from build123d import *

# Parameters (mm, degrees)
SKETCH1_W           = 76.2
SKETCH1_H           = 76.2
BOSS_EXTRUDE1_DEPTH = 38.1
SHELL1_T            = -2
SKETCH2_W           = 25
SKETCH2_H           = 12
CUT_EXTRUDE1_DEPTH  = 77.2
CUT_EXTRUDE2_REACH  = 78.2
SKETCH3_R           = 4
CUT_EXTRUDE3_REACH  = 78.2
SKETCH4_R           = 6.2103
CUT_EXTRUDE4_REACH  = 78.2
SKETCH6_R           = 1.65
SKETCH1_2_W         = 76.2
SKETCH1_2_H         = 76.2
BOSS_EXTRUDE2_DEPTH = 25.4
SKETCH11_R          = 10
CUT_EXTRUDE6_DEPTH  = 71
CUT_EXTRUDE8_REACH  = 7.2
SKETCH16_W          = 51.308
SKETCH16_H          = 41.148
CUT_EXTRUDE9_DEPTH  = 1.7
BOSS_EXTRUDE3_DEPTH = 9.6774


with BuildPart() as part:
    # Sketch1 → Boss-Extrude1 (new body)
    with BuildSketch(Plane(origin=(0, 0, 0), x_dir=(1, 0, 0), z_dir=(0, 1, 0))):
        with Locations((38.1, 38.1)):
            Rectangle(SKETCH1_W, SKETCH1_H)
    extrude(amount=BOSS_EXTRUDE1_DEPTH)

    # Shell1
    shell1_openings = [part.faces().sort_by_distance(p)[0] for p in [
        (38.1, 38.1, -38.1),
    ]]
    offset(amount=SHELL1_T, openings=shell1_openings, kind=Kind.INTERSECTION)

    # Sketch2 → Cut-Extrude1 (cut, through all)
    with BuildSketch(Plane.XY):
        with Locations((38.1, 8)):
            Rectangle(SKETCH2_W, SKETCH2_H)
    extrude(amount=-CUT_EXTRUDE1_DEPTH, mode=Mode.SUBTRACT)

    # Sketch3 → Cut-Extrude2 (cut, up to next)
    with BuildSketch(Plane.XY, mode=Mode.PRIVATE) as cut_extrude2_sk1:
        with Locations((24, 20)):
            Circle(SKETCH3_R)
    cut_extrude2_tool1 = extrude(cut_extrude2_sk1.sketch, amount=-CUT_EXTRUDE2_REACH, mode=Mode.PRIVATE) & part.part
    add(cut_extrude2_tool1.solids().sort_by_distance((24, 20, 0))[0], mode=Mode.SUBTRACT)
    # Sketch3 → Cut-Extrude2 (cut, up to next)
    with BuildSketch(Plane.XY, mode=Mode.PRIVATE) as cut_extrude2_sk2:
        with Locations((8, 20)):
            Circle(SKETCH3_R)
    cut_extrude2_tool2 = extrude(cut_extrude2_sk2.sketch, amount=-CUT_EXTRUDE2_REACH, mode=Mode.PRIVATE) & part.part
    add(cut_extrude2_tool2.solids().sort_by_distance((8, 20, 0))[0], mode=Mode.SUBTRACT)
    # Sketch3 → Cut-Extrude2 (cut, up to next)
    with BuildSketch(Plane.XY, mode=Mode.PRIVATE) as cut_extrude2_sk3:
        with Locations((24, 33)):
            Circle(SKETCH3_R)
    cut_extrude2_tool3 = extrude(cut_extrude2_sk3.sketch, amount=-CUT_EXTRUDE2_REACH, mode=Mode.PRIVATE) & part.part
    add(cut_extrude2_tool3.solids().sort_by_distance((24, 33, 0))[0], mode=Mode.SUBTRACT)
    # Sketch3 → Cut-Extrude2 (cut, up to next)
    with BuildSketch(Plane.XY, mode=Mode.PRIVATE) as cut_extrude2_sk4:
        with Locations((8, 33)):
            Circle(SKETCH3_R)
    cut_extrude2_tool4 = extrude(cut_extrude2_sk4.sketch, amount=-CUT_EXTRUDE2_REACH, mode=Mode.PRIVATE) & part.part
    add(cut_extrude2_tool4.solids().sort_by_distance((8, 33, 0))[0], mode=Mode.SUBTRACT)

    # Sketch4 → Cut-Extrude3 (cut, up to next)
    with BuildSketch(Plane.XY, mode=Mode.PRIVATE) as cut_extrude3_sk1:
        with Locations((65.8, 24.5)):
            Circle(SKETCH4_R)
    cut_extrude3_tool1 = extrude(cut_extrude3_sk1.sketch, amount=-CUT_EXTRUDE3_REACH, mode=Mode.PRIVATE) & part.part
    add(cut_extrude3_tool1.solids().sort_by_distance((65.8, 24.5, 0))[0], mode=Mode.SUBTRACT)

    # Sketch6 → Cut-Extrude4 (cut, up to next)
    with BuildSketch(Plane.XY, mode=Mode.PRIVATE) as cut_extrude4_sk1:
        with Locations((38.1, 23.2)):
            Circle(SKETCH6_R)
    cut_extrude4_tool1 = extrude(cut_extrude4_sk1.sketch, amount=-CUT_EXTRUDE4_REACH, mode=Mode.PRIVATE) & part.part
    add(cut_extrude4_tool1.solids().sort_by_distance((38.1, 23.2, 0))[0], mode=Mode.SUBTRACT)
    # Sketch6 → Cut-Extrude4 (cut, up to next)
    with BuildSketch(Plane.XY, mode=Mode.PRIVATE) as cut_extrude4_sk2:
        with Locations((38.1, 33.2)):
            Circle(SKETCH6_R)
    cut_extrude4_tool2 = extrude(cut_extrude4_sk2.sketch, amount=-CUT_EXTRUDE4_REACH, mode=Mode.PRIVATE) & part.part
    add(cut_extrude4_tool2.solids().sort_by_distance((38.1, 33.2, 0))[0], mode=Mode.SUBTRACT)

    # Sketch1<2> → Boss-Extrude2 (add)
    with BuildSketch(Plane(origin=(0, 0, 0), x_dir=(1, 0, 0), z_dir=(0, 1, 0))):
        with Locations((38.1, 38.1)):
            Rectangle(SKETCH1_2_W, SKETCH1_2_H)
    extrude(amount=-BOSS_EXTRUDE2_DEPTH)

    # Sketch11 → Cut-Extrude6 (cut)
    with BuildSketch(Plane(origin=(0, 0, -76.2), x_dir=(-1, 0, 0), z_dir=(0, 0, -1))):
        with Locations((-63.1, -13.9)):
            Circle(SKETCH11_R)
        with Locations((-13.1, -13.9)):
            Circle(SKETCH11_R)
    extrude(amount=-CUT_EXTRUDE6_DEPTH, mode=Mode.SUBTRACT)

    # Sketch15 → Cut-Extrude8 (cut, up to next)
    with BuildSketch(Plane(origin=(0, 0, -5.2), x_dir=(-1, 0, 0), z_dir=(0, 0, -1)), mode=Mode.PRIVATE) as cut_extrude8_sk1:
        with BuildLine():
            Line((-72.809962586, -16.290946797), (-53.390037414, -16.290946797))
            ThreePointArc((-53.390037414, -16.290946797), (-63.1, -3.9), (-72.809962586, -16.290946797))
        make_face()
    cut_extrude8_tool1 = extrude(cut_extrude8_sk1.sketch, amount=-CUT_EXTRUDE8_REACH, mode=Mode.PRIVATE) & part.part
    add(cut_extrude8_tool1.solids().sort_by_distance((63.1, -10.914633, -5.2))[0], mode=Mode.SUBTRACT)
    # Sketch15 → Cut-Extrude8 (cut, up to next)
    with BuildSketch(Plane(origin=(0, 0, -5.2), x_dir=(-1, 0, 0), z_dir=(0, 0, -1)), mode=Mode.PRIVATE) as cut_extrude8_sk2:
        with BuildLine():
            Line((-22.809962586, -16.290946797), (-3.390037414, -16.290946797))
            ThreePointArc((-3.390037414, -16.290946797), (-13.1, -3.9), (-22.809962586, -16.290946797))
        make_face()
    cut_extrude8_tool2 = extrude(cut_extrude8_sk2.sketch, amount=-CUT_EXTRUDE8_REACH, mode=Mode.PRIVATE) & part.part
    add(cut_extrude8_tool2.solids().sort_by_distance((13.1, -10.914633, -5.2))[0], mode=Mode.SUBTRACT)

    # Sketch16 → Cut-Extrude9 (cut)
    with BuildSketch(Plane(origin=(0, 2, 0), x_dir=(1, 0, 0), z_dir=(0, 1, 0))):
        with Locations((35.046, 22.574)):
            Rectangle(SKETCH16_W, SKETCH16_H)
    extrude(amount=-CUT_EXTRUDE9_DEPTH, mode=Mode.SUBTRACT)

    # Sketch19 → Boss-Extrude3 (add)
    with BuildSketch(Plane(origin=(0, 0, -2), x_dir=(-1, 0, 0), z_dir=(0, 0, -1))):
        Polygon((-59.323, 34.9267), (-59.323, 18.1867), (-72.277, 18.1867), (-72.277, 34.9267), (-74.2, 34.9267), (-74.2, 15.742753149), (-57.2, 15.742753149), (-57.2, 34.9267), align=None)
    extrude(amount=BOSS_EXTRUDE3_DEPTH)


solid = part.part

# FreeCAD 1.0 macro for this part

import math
import FreeCAD as App
import Part
import Sketcher
from FreeCAD import Vector
Q = App.Units.Quantity


def faces_at(feature, points):
    """Names of the faces that lie closest to the given points."""
    faces = feature.Shape.Faces
    near = lambda p: min(range(len(faces)), key=lambda i: faces[i].distToShape(Part.Vertex(*p))[0])
    return sorted({f"Face{near(p) + 1}" for p in points})

doc = App.newDocument("Part")
body = doc.addObject("PartDesign::Body", "Body")

# Sketch on XZ plane
sketch1 = body.newObject("Sketcher::SketchObject", "Sketch")
sketch1.AttachmentSupport = (doc.getObject("XZ_Plane"), [""])
sketch1.MapMode = "FlatFace"
sketch1.addGeometry([
    Part.LineSegment(Vector(0, -76.2, 0), Vector(0, 0, 0)),
    Part.LineSegment(Vector(0, 0, 0), Vector(76.2, 0, 0)),
    Part.LineSegment(Vector(76.2, 0, 0), Vector(76.2, -76.2, 0)),
    Part.LineSegment(Vector(76.2, -76.2, 0), Vector(0, -76.2, 0)),
], False)
sketch1.addConstraint([
    Sketcher.Constraint("Coincident", 0, 2, 1, 1),
    Sketcher.Constraint("Coincident", 1, 2, 2, 1),
    Sketcher.Constraint("Coincident", 2, 2, 3, 1),
    Sketcher.Constraint("Coincident", 3, 2, 0, 1),
    Sketcher.Constraint("Vertical", 0),
    Sketcher.Constraint("Horizontal", 1),
    Sketcher.Constraint("Vertical", 2),
    Sketcher.Constraint("Horizontal", 3),
    Sketcher.Constraint("Coincident", 0, 2, -1, 1),
    Sketcher.Constraint("Equal", 3, 0),
    Sketcher.Constraint("DistanceX", 1, 1, 1, 2, Q("76.2 mm")),
])
pad1 = body.newObject("PartDesign::Pad", "Pad")
pad1.Profile = sketch1
pad1.Length = 38.1
pad1.Reversed = True
doc.recompute()

thickness = body.newObject("PartDesign::Thickness", "Thickness")
thickness.Base = (pad1, faces_at(pad1, [(38.1, 38.1, -38.1)]))
thickness.Value = 2
thickness.Reversed = True
thickness.Join = "Intersection"

# Sketch on XY plane
sketch2 = body.newObject("Sketcher::SketchObject", "Sketch001")
sketch2.AttachmentSupport = (doc.getObject("XY_Plane"), [""])
sketch2.MapMode = "FlatFace"
sketch2.addGeometry([
    Part.LineSegment(Vector(25.6, 14, 0), Vector(25.6, 2, 0)),
    Part.LineSegment(Vector(25.6, 2, 0), Vector(50.6, 2, 0)),
    Part.LineSegment(Vector(50.6, 2, 0), Vector(50.6, 14, 0)),
    Part.LineSegment(Vector(50.6, 14, 0), Vector(25.6, 14, 0)),
], False)
sketch2.addConstraint([
    Sketcher.Constraint("Coincident", 0, 2, 1, 1),
    Sketcher.Constraint("Coincident", 1, 2, 2, 1),
    Sketcher.Constraint("Coincident", 2, 2, 3, 1),
    Sketcher.Constraint("Coincident", 3, 2, 0, 1),
    Sketcher.Constraint("Vertical", 0),
    Sketcher.Constraint("Horizontal", 1),
    Sketcher.Constraint("Vertical", 2),
    Sketcher.Constraint("Horizontal", 3),
    Sketcher.Constraint("DistanceX", 1, 1, 1, 2, Q("25 mm")),
    Sketcher.Constraint("DistanceY", 0, 2, 0, 1, Q("12 mm")),
    Sketcher.Constraint("DistanceY", -1, 1, 0, 2, Q("2 mm")),
    Sketcher.Constraint("DistanceX", -1, 1, 0, 2, Q("25.6 mm")),
])
pocket1 = body.newObject("PartDesign::Pocket", "Pocket")
pocket1.Profile = sketch2
pocket1.Type = "ThroughAll"

# Sketch on XY plane
sketch3 = body.newObject("Sketcher::SketchObject", "Sketch002")
sketch3.AttachmentSupport = (doc.getObject("XY_Plane"), [""])
sketch3.MapMode = "FlatFace"
sketch3.addGeometry(Part.Circle(Vector(24, 20, 0), Vector(0, 0, 1), 4), False)
sketch3.addConstraint([
    Sketcher.Constraint("Diameter", 0, Q("8 mm")),
    Sketcher.Constraint("DistanceX", -1, 1, 0, 3, Q("24 mm")),
    Sketcher.Constraint("DistanceY", -1, 1, 0, 3, Q("20 mm")),
])
pocket2 = body.newObject("PartDesign::Pocket", "Pocket001")
pocket2.Profile = sketch3
pocket2.Type = "UpToFirst"

# Sketch on XY plane
sketch4 = body.newObject("Sketcher::SketchObject", "Sketch003")
sketch4.AttachmentSupport = (doc.getObject("XY_Plane"), [""])
sketch4.MapMode = "FlatFace"
sketch4.addGeometry(Part.Circle(Vector(8, 20, 0), Vector(0, 0, 1), 4), False)
sketch4.addConstraint([
    Sketcher.Constraint("Diameter", 0, Q("8 mm")),
    Sketcher.Constraint("DistanceX", -1, 1, 0, 3, Q("8 mm")),
    Sketcher.Constraint("DistanceY", -1, 1, 0, 3, Q("20 mm")),
])
pocket3 = body.newObject("PartDesign::Pocket", "Pocket002")
pocket3.Profile = sketch4
pocket3.Type = "UpToFirst"

# Sketch on XY plane
sketch5 = body.newObject("Sketcher::SketchObject", "Sketch004")
sketch5.AttachmentSupport = (doc.getObject("XY_Plane"), [""])
sketch5.MapMode = "FlatFace"
sketch5.addGeometry(Part.Circle(Vector(24, 33, 0), Vector(0, 0, 1), 4), False)
sketch5.addConstraint([
    Sketcher.Constraint("Diameter", 0, Q("8 mm")),
    Sketcher.Constraint("DistanceX", -1, 1, 0, 3, Q("24 mm")),
    Sketcher.Constraint("DistanceY", -1, 1, 0, 3, Q("33 mm")),
])
pocket4 = body.newObject("PartDesign::Pocket", "Pocket003")
pocket4.Profile = sketch5
pocket4.Type = "UpToFirst"

# Sketch on XY plane
sketch6 = body.newObject("Sketcher::SketchObject", "Sketch005")
sketch6.AttachmentSupport = (doc.getObject("XY_Plane"), [""])
sketch6.MapMode = "FlatFace"
sketch6.addGeometry(Part.Circle(Vector(8, 33, 0), Vector(0, 0, 1), 4), False)
sketch6.addConstraint([
    Sketcher.Constraint("Diameter", 0, Q("8 mm")),
    Sketcher.Constraint("DistanceX", -1, 1, 0, 3, Q("8 mm")),
    Sketcher.Constraint("DistanceY", -1, 1, 0, 3, Q("33 mm")),
])
pocket5 = body.newObject("PartDesign::Pocket", "Pocket004")
pocket5.Profile = sketch6
pocket5.Type = "UpToFirst"

# Sketch on XY plane
sketch7 = body.newObject("Sketcher::SketchObject", "Sketch006")
sketch7.AttachmentSupport = (doc.getObject("XY_Plane"), [""])
sketch7.MapMode = "FlatFace"
sketch7.addGeometry(Part.Circle(Vector(65.8, 24.5, 0), Vector(0, 0, 1), 6.2103), False)
sketch7.addConstraint([
    Sketcher.Constraint("Diameter", 0, Q("12.4206 mm")),
    Sketcher.Constraint("DistanceX", -1, 1, 0, 3, Q("65.8 mm")),
    Sketcher.Constraint("DistanceY", -1, 1, 0, 3, Q("24.5 mm")),
])
pocket6 = body.newObject("PartDesign::Pocket", "Pocket005")
pocket6.Profile = sketch7
pocket6.Type = "UpToFirst"

# Sketch on XY plane
sketch8 = body.newObject("Sketcher::SketchObject", "Sketch007")
sketch8.AttachmentSupport = (doc.getObject("XY_Plane"), [""])
sketch8.MapMode = "FlatFace"
sketch8.addGeometry(Part.Circle(Vector(38.1, 23.2, 0), Vector(0, 0, 1), 1.65), False)
sketch8.addConstraint([
    Sketcher.Constraint("Diameter", 0, Q("3.3 mm")),
    Sketcher.Constraint("DistanceX", -1, 1, 0, 3, Q("38.1 mm")),
    Sketcher.Constraint("DistanceY", -1, 1, 0, 3, Q("23.2 mm")),
])
pocket7 = body.newObject("PartDesign::Pocket", "Pocket006")
pocket7.Profile = sketch8
pocket7.Type = "UpToFirst"

# Sketch on XY plane
sketch9 = body.newObject("Sketcher::SketchObject", "Sketch008")
sketch9.AttachmentSupport = (doc.getObject("XY_Plane"), [""])
sketch9.MapMode = "FlatFace"
sketch9.addGeometry(Part.Circle(Vector(38.1, 33.2, 0), Vector(0, 0, 1), 1.65), False)
sketch9.addConstraint([
    Sketcher.Constraint("Diameter", 0, Q("3.3 mm")),
    Sketcher.Constraint("DistanceX", -1, 1, 0, 3, Q("38.1 mm")),
    Sketcher.Constraint("DistanceY", -1, 1, 0, 3, Q("33.2 mm")),
])
pocket8 = body.newObject("PartDesign::Pocket", "Pocket007")
pocket8.Profile = sketch9
pocket8.Type = "UpToFirst"

# Sketch on XZ plane
sketch10 = body.newObject("Sketcher::SketchObject", "Sketch009")
sketch10.AttachmentSupport = (doc.getObject("XZ_Plane"), [""])
sketch10.MapMode = "FlatFace"
sketch10.addGeometry([
    Part.LineSegment(Vector(0, -76.2, 0), Vector(0, 0, 0)),
    Part.LineSegment(Vector(0, 0, 0), Vector(76.2, 0, 0)),
    Part.LineSegment(Vector(76.2, 0, 0), Vector(76.2, -76.2, 0)),
    Part.LineSegment(Vector(76.2, -76.2, 0), Vector(0, -76.2, 0)),
], False)
sketch10.addConstraint([
    Sketcher.Constraint("Coincident", 0, 2, 1, 1),
    Sketcher.Constraint("Coincident", 1, 2, 2, 1),
    Sketcher.Constraint("Coincident", 2, 2, 3, 1),
    Sketcher.Constraint("Coincident", 3, 2, 0, 1),
    Sketcher.Constraint("Vertical", 0),
    Sketcher.Constraint("Horizontal", 1),
    Sketcher.Constraint("Vertical", 2),
    Sketcher.Constraint("Horizontal", 3),
    Sketcher.Constraint("Coincident", 0, 2, -1, 1),
    Sketcher.Constraint("Equal", 3, 0),
    Sketcher.Constraint("DistanceX", 1, 1, 1, 2, Q("76.2 mm")),
])
pad2 = body.newObject("PartDesign::Pad", "Pad001")
pad2.Profile = sketch10
pad2.Length = 25.4

# Sketch on XY plane
sketch11 = body.newObject("Sketcher::SketchObject", "Sketch010")
sketch11.AttachmentSupport = (doc.getObject("XY_Plane"), [""])
sketch11.MapMode = "FlatFace"
sketch11.AttachmentOffset = App.Placement(Vector(0, 0, -76.2), App.Rotation())
sketch11.addGeometry([
    Part.Circle(Vector(63.1, -13.9, 0), Vector(0, 0, 1), 10),
    Part.Circle(Vector(13.1, -13.9, 0), Vector(0, 0, 1), 10),
], False)
sketch11.addConstraint([
    Sketcher.Constraint("Equal", 0, 1),
    Sketcher.Constraint("Horizontal", 0, 3, 1, 3),
    Sketcher.Constraint("Diameter", 0, Q("20 mm")),
    Sketcher.Constraint("DistanceX", 1, 3, 0, 3, Q("50 mm")),
    Sketcher.Constraint("DistanceX", -1, 1, 0, 3, Q("63.1 mm")),
    Sketcher.Constraint("DistanceY", 0, 3, -1, 1, Q("13.9 mm")),
])
pocket9 = body.newObject("PartDesign::Pocket", "Pocket008")
pocket9.Profile = sketch11
pocket9.Length = 71
pocket9.Reversed = True

# Sketch on XY plane
sketch12 = body.newObject("Sketcher::SketchObject", "Sketch011")
sketch12.AttachmentSupport = (doc.getObject("XY_Plane"), [""])
sketch12.MapMode = "FlatFace"
sketch12.AttachmentOffset = App.Placement(Vector(0, 0, -5.2), App.Rotation())
sketch12.addGeometry([
    Part.LineSegment(Vector(72.809963, -16.290947, 0), Vector(53.390037, -16.290947, 0)),
    Part.ArcOfCircle(Part.Circle(Vector(63.1, -13.9, 0), Vector(0, 0, 1), 10), math.radians(-13.833114), math.radians(193.833114)),
], False)
sketch12.addConstraint([
    Sketcher.Constraint("Coincident", 0, 1, 1, 1),
    Sketcher.Constraint("Coincident", 1, 2, 0, 2),
    Sketcher.Constraint("Horizontal", 0),
    Sketcher.Constraint("Radius", 1, Q("10 mm")),
    Sketcher.Constraint("DistanceX", -1, 1, 1, 3, Q("63.1 mm")),
    Sketcher.Constraint("DistanceY", 1, 3, -1, 1, Q("13.9 mm")),
    Sketcher.Constraint("DistanceX", 0, 2, 0, 1, Q("19.419925 mm")),
])
pocket10 = body.newObject("PartDesign::Pocket", "Pocket009")
pocket10.Profile = sketch12
pocket10.Type = "UpToFirst"
pocket10.Reversed = True

# Sketch on XY plane
sketch13 = body.newObject("Sketcher::SketchObject", "Sketch012")
sketch13.AttachmentSupport = (doc.getObject("XY_Plane"), [""])
sketch13.MapMode = "FlatFace"
sketch13.AttachmentOffset = App.Placement(Vector(0, 0, -5.2), App.Rotation())
sketch13.addGeometry([
    Part.LineSegment(Vector(22.809963, -16.290947, 0), Vector(3.390037, -16.290947, 0)),
    Part.ArcOfCircle(Part.Circle(Vector(13.1, -13.9, 0), Vector(0, 0, 1), 10), math.radians(-13.833114), math.radians(193.833114)),
], False)
sketch13.addConstraint([
    Sketcher.Constraint("Coincident", 0, 1, 1, 1),
    Sketcher.Constraint("Coincident", 1, 2, 0, 2),
    Sketcher.Constraint("Horizontal", 0),
    Sketcher.Constraint("Radius", 1, Q("10 mm")),
    Sketcher.Constraint("DistanceX", -1, 1, 1, 3, Q("13.1 mm")),
    Sketcher.Constraint("DistanceY", 1, 3, -1, 1, Q("13.9 mm")),
    Sketcher.Constraint("DistanceX", 0, 2, 0, 1, Q("19.419925 mm")),
])
pocket11 = body.newObject("PartDesign::Pocket", "Pocket010")
pocket11.Profile = sketch13
pocket11.Type = "UpToFirst"
pocket11.Reversed = True

# Sketch on XZ plane
sketch14 = body.newObject("Sketcher::SketchObject", "Sketch013")
sketch14.AttachmentSupport = (doc.getObject("XZ_Plane"), [""])
sketch14.MapMode = "FlatFace"
sketch14.AttachmentOffset = App.Placement(Vector(0, 0, -2), App.Rotation())
sketch14.addGeometry([
    Part.LineSegment(Vector(9.392, -43.148, 0), Vector(9.392, -2, 0)),
    Part.LineSegment(Vector(9.392, -2, 0), Vector(60.7, -2, 0)),
    Part.LineSegment(Vector(60.7, -2, 0), Vector(60.7, -43.148, 0)),
    Part.LineSegment(Vector(60.7, -43.148, 0), Vector(9.392, -43.148, 0)),
], False)
sketch14.addConstraint([
    Sketcher.Constraint("Coincident", 0, 2, 1, 1),
    Sketcher.Constraint("Coincident", 1, 2, 2, 1),
    Sketcher.Constraint("Coincident", 2, 2, 3, 1),
    Sketcher.Constraint("Coincident", 3, 2, 0, 1),
    Sketcher.Constraint("Vertical", 0),
    Sketcher.Constraint("Horizontal", 1),
    Sketcher.Constraint("Vertical", 2),
    Sketcher.Constraint("Horizontal", 3),
    Sketcher.Constraint("DistanceY", 0, 2, -1, 1, Q("2 mm")),
    Sketcher.Constraint("DistanceX", -1, 1, 1, 2, Q("60.7 mm")),
    Sketcher.Constraint("DistanceX", 1, 1, 1, 2, Q("51.308 mm")),
    Sketcher.Constraint("DistanceY", 0, 1, 0, 2, Q("41.148 mm")),
])
pocket12 = body.newObject("PartDesign::Pocket", "Pocket011")
pocket12.Profile = sketch14
pocket12.Length = 1.7
pocket12.Reversed = True

# Sketch on XY plane
sketch15 = body.newObject("Sketcher::SketchObject", "Sketch014")
sketch15.AttachmentSupport = (doc.getObject("XY_Plane"), [""])
sketch15.MapMode = "FlatFace"
sketch15.AttachmentOffset = App.Placement(Vector(0, 0, -2), App.Rotation())
sketch15.addGeometry([
    Part.LineSegment(Vector(59.323, 34.9267, 0), Vector(59.323, 18.1867, 0)),  # 0
    Part.LineSegment(Vector(59.323, 18.1867, 0), Vector(72.277, 18.1867, 0)),  # 1
    Part.LineSegment(Vector(72.277, 18.1867, 0), Vector(72.277, 34.9267, 0)),  # 2
    Part.LineSegment(Vector(72.277, 34.9267, 0), Vector(74.2, 34.9267, 0)),  # 3
    Part.LineSegment(Vector(74.2, 34.9267, 0), Vector(74.2, 15.742753, 0)),  # 4
    Part.LineSegment(Vector(74.2, 15.742753, 0), Vector(57.2, 15.742753, 0)),  # 5
    Part.LineSegment(Vector(57.2, 15.742753, 0), Vector(57.2, 34.9267, 0)),  # 6
    Part.LineSegment(Vector(57.2, 34.9267, 0), Vector(59.323, 34.9267, 0)),  # 7
], False)
sketch15.addConstraint([
    Sketcher.Constraint("Coincident", 0, 2, 1, 1),
    Sketcher.Constraint("Coincident", 1, 2, 2, 1),
    Sketcher.Constraint("Coincident", 2, 2, 3, 1),
    Sketcher.Constraint("Coincident", 3, 2, 4, 1),
    Sketcher.Constraint("Coincident", 4, 2, 5, 1),
    Sketcher.Constraint("Coincident", 5, 2, 6, 1),
    Sketcher.Constraint("Coincident", 6, 2, 7, 1),
    Sketcher.Constraint("Coincident", 7, 2, 0, 1),
    Sketcher.Constraint("Vertical", 0),
    Sketcher.Constraint("Horizontal", 1),
    Sketcher.Constraint("Vertical", 2),
    Sketcher.Constraint("Horizontal", 3),
    Sketcher.Constraint("Vertical", 4),
    Sketcher.Constraint("Horizontal", 5),
    Sketcher.Constraint("Vertical", 6),
    Sketcher.Constraint("Horizontal", 7),
    Sketcher.Constraint("Horizontal", 3, 2, 6, 2),
    Sketcher.Constraint("DistanceX", 5, 2, 5, 1, Q("17 mm")),
    Sketcher.Constraint("DistanceY", 0, 2, 0, 1, Q("16.74 mm")),
    Sketcher.Constraint("DistanceX", -1, 1, 3, 2, Q("74.2 mm")),
    Sketcher.Constraint("DistanceX", 1, 1, 1, 2, Q("12.954 mm")),
    Sketcher.Constraint("DistanceX", 3, 1, 3, 2, Q("1.923 mm")),
    Sketcher.Constraint("DistanceY", -1, 1, 0, 2, Q("18.1867 mm")),
    Sketcher.Constraint("DistanceY", 4, 2, 4, 1, Q("19.183947 mm")),
])
pad3 = body.newObject("PartDesign::Pad", "Pad002")
pad3.Profile = sketch15
pad3.Length = 9.6774
pad3.Reversed = True

doc.recompute()
